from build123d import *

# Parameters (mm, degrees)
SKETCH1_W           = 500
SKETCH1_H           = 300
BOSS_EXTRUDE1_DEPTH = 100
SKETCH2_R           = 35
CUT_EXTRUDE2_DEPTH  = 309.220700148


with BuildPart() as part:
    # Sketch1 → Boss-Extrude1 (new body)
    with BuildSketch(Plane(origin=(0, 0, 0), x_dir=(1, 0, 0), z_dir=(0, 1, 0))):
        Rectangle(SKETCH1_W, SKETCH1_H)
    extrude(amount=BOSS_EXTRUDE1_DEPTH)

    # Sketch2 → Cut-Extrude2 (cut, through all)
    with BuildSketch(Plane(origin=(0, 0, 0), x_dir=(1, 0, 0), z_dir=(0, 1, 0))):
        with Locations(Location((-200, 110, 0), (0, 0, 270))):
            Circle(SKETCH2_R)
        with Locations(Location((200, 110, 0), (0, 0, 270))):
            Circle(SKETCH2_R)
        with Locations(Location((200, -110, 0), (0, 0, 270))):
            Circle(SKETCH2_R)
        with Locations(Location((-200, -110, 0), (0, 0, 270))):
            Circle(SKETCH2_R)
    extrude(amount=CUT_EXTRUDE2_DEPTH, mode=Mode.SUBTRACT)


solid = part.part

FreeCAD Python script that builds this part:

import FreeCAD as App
import Part
import Sketcher

V = App.Vector

doc = App.newDocument("Part")
body = doc.addObject("PartDesign::Body", "Body")

# Sketch on XZ plane
sketch1 = doc.addObject("Sketcher::SketchObject", "Sketch")
body.addObject(sketch1)
sketch1.AttachmentSupport = (doc.XZ_Plane, [""])
sketch1.MapMode = "FlatFace"
sketch1.addGeometry(Part.LineSegment(V(-250, -150, 0), V(-250, 150, 0)), False)
sketch1.addGeometry(Part.LineSegment(V(-250, 150, 0), V(250, 150, 0)), False)
sketch1.addGeometry(Part.LineSegment(V(250, 150, 0), V(250, -150, 0)), False)
sketch1.addGeometry(Part.LineSegment(V(250, -150, 0), V(-250, -150, 0)), False)
sketch1.addConstraint(Sketcher.Constraint("Coincident", 0, 2, 1, 1))
sketch1.addConstraint(Sketcher.Constraint("Coincident", 1, 2, 2, 1))
sketch1.addConstraint(Sketcher.Constraint("Coincident", 2, 2, 3, 1))
sketch1.addConstraint(Sketcher.Constraint("Coincident", 3, 2, 0, 1))
sketch1.addConstraint(Sketcher.Constraint("Vertical", 0))
sketch1.addConstraint(Sketcher.Constraint("Horizontal", 1))
sketch1.addConstraint(Sketcher.Constraint("Vertical", 2))
sketch1.addConstraint(Sketcher.Constraint("Horizontal", 3))
sketch1.addConstraint(Sketcher.Constraint("Symmetric", 0, 2, 2, 2, -1, 1))
sketch1.addConstraint(Sketcher.Constraint("DistanceX", 1, 1, 1, 2, 500.0))
sketch1.addConstraint(Sketcher.Constraint("DistanceY", 0, 1, 0, 2, 300.0))
pad1 = doc.addObject("PartDesign::Pad", "Pad")
body.addObject(pad1)
pad1.Profile = sketch1
pad1.Length = 100
pad1.Reversed = True

# Sketch on XZ plane
sketch2 = doc.addObject("Sketcher::SketchObject", "Sketch001")
body.addObject(sketch2)
sketch2.AttachmentSupport = (doc.XZ_Plane, [""])
sketch2.MapMode = "FlatFace"
sketch2.addGeometry(Part.Circle(V(-200, -110, 0), V(0, 0, 1), 35), False)
sketch2.addGeometry(Part.Circle(V(200, -110, 0), V(0, 0, 1), 35), False)
sketch2.addGeometry(Part.Circle(V(200, 110, 0), V(0, 0, 1), 35), False)
sketch2.addGeometry(Part.Circle(V(-200, 110, 0), V(0, 0, 1), 35), False)
sketch2.addConstraint(Sketcher.Constraint("Equal", 0, 1))
sketch2.addConstraint(Sketcher.Constraint("Equal", 1, 2))
sketch2.addConstraint(Sketcher.Constraint("Equal", 2, 3))
sketch2.addConstraint(Sketcher.Constraint("Symmetric", 0, 3, 2, 3, -1, 1))
sketch2.addConstraint(Sketcher.Constraint("Symmetric", 1, 3, 3, 3, -1, 1))
sketch2.addConstraint(Sketcher.Constraint("Symmetric", 0, 3, 1, 3, -2))
sketch2.addConstraint(Sketcher.Constraint("Diameter", 0, 70.0))
sketch2.addConstraint(Sketcher.Constraint("DistanceX", 0, 3, -1, 1, 200.0))
sketch2.addConstraint(Sketcher.Constraint("DistanceY", 0, 3, -1, 1, 110.0))
pocket1 = doc.addObject("PartDesign::Pocket", "Pocket")
body.addObject(pocket1)
pocket1.Profile = sketch2
pocket1.Type = "ThroughAll"

doc.recompute()
